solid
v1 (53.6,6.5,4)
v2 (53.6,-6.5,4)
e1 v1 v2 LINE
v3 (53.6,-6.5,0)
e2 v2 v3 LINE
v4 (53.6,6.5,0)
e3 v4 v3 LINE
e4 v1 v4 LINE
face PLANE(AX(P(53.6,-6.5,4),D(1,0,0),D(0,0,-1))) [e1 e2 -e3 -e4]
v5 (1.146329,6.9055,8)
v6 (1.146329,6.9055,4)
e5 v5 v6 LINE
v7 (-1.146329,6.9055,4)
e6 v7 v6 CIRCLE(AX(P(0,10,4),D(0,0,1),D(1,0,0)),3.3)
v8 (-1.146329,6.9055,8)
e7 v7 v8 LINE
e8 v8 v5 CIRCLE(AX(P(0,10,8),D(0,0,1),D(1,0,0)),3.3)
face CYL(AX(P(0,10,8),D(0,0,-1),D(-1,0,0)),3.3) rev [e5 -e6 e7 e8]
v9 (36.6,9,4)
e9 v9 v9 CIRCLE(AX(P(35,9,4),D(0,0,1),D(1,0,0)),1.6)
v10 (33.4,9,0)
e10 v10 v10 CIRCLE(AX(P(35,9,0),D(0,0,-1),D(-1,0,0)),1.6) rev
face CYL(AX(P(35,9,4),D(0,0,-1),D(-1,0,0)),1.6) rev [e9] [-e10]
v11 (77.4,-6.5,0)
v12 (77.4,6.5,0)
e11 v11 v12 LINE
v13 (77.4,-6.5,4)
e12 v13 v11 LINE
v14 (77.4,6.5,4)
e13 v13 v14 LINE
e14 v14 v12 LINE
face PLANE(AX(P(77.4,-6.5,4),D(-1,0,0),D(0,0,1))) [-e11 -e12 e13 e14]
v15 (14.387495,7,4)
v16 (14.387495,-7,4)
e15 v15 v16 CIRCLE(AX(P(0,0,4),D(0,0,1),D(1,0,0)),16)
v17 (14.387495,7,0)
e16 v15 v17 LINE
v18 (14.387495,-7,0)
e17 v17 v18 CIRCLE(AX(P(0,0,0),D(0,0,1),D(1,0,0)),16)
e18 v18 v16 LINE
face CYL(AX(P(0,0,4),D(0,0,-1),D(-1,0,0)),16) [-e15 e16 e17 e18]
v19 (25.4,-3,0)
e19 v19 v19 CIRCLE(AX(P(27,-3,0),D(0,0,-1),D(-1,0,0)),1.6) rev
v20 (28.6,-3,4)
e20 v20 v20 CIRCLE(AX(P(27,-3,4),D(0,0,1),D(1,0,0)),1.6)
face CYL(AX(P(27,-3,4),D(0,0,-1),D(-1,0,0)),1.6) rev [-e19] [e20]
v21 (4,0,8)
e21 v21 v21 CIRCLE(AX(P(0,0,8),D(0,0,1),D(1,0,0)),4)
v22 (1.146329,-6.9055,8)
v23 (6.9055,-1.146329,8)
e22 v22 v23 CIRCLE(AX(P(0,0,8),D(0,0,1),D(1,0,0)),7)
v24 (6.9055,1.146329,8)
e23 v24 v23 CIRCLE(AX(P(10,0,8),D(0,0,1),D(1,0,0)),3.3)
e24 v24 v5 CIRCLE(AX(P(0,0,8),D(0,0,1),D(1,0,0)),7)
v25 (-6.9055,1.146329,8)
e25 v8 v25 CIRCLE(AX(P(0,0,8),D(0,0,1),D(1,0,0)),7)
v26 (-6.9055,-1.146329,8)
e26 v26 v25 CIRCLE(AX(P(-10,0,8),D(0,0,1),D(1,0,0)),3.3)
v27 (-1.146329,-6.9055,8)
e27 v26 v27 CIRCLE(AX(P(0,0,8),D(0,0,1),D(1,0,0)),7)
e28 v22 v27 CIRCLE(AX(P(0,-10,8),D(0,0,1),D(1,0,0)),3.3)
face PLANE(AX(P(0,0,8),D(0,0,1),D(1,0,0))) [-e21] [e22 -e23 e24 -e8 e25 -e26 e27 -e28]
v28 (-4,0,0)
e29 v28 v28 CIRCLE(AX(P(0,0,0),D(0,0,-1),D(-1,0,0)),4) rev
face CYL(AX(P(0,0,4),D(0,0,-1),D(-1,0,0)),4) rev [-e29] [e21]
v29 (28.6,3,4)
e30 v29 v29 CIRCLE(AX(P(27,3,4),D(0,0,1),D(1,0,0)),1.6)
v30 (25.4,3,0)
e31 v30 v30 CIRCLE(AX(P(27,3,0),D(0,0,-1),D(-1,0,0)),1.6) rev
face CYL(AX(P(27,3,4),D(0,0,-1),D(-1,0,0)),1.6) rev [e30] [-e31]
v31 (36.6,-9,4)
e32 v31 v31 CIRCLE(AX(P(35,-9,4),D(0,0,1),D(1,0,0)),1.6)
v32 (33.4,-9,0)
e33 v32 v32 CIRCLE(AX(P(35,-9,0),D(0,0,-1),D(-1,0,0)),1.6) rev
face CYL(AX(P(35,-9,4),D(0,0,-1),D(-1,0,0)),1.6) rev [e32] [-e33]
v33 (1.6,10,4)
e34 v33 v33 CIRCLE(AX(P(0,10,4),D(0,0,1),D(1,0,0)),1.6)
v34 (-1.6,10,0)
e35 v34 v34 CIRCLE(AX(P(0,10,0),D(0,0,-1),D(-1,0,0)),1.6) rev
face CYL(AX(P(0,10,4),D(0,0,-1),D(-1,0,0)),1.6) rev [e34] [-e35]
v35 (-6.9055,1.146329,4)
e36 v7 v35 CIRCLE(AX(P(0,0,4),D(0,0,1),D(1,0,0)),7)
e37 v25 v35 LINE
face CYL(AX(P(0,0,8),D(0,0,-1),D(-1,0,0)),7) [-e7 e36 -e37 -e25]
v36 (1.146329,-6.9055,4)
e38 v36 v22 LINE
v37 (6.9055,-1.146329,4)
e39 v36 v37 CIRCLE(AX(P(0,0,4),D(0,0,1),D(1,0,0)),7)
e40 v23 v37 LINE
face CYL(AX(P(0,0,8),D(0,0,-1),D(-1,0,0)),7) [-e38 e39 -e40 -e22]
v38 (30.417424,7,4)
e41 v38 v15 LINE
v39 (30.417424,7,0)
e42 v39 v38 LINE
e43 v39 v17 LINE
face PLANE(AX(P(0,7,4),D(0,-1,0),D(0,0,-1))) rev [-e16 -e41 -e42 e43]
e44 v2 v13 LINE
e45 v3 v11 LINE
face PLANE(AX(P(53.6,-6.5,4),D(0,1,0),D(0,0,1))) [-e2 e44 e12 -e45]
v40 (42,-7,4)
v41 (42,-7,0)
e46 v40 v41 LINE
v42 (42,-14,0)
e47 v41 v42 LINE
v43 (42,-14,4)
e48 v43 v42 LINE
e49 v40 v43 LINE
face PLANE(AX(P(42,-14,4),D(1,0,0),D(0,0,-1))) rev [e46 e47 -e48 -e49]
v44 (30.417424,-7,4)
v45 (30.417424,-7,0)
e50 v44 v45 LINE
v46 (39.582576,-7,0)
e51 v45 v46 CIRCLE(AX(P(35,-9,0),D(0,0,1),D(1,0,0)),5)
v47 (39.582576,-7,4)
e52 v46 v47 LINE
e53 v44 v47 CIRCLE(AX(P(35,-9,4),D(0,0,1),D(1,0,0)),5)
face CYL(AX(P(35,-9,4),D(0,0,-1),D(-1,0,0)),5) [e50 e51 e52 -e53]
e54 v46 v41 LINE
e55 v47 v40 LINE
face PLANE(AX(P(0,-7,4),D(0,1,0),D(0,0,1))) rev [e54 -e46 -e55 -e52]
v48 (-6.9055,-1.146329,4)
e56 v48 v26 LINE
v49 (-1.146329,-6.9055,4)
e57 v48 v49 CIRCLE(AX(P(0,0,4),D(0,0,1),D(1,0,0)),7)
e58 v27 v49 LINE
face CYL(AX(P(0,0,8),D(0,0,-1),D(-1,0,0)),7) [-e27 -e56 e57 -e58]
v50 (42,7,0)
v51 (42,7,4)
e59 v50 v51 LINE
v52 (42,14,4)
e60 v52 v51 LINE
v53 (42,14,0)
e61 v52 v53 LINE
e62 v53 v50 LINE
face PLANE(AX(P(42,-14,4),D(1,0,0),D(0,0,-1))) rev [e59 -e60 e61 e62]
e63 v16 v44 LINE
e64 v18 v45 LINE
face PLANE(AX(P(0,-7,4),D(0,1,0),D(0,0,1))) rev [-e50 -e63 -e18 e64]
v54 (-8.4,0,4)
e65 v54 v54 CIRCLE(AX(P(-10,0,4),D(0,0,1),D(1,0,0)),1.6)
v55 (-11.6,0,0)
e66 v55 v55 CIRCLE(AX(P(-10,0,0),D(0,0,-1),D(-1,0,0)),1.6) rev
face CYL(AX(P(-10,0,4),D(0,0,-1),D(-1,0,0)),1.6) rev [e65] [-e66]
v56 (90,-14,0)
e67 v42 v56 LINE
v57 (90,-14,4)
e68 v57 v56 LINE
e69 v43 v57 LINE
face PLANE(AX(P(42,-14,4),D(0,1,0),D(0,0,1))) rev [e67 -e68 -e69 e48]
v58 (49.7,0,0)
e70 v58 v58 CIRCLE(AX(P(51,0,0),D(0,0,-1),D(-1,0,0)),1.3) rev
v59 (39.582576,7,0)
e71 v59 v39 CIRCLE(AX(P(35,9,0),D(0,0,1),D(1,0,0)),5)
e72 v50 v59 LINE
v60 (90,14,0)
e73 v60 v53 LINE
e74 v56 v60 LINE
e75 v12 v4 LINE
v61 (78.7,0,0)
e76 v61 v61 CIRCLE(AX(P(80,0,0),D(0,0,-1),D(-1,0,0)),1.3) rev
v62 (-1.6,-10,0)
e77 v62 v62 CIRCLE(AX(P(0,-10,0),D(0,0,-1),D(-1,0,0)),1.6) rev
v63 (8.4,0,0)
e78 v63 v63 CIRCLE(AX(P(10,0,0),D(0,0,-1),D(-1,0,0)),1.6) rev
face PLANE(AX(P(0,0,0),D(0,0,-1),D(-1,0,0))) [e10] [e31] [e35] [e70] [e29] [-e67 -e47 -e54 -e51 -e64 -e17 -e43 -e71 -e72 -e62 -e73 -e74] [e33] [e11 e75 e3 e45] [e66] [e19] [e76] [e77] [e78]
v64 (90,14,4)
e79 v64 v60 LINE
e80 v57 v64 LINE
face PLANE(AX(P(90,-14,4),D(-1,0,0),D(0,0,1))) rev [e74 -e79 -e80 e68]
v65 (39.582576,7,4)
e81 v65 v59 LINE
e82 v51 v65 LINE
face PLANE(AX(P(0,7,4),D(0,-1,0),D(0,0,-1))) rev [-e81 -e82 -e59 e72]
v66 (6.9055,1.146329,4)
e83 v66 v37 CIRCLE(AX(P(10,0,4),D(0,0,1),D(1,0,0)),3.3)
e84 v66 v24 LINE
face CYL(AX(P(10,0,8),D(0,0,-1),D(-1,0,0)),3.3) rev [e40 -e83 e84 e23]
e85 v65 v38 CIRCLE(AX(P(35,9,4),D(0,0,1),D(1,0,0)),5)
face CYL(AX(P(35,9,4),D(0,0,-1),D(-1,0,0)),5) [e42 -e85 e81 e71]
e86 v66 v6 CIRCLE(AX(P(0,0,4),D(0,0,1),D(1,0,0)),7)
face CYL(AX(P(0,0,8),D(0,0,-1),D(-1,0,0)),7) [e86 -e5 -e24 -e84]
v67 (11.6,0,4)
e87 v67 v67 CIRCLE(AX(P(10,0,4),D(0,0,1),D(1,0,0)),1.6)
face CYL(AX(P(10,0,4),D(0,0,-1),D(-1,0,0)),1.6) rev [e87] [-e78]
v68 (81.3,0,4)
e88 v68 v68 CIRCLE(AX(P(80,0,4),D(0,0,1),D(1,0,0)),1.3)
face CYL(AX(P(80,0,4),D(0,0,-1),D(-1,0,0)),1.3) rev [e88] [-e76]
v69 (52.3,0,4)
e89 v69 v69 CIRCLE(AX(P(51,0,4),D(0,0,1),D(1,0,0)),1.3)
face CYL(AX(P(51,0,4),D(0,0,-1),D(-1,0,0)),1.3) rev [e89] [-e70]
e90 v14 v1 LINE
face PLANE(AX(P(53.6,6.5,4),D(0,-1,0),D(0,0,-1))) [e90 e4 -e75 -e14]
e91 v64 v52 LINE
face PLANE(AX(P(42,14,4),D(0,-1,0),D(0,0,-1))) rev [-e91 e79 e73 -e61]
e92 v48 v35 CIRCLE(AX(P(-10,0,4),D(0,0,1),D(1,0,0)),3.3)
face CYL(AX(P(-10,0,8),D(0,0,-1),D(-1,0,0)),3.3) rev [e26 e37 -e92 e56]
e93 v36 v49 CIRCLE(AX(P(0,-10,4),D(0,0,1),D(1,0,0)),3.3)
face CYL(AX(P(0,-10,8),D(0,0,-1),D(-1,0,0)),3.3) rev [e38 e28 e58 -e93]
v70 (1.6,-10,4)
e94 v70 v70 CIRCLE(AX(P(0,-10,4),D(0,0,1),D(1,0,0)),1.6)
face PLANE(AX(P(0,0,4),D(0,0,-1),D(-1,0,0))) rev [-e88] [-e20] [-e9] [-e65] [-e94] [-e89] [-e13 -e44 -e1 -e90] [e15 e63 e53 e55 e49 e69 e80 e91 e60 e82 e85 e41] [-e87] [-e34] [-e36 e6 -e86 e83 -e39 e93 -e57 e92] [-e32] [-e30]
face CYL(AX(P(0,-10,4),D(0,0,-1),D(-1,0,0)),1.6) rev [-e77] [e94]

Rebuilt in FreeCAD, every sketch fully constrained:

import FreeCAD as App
import Part
import Sketcher


def add_polygon(sketch, points):
    """Adds a closed chain of lines whose ends are joined by coincident constraints."""
    first, n = sketch.GeometryCount, len(points)
    for a, b in zip(points, points[1:] + points[:1]):
        sketch.addGeometry(Part.LineSegment(App.Vector(*a, 0), App.Vector(*b, 0)), False)
    for i in range(n):
        sketch.addConstraint(Sketcher.Constraint("Coincident", first + i, 2, first + (i + 1) % n, 1))

doc = App.newDocument("Part")
body = doc.addObject("PartDesign::Body", "Body")

# Sketch on XY plane
sketch1 = body.newObject("Sketcher::SketchObject", "Sketch")
sketch1.AttachmentSupport = (doc.getObject("XY_Plane"), [""])
sketch1.MapMode = "FlatFace"
add_polygon(sketch1, [(0, 7), (0, -7), (60, -7), (60, 7)])  # lines 0-3
sketch1.addConstraint([
    Sketcher.Constraint("Vertical", 0),
    Sketcher.Constraint("Horizontal", 1),
    Sketcher.Constraint("Vertical", 2),
    Sketcher.Constraint("Horizontal", 3),
    Sketcher.Constraint("Symmetric", 0, 2, 3, 2, -1, 1),
    Sketcher.Constraint("DistanceX", 1, 1, 1, 2, 60.0),
    Sketcher.Constraint("DistanceY", 0, 2, 0, 1, 14.0),
])
pad1 = body.newObject("PartDesign::Pad", "Pad")
pad1.Profile = sketch1
pad1.Length = 4

# Sketch on XY plane
sketch2 = body.newObject("Sketcher::SketchObject", "Sketch001")
sketch2.AttachmentSupport = (doc.getObject("XY_Plane"), [""])
sketch2.MapMode = "FlatFace"
sketch2.addGeometry(Part.Circle(App.Vector(0, 0, 0), App.Vector(0, 0, 1), 16), False)
sketch2.addConstraint([
    Sketcher.Constraint("Coincident", 0, 3, -1, 1),
    Sketcher.Constraint("Diameter", 0, 32.0),
])
pad2 = body.newObject("PartDesign::Pad", "Pad001")
pad2.Profile = sketch2
pad2.Length = 4

# Sketch on XY plane
sketch3 = body.newObject("Sketcher::SketchObject", "Sketch002")
sketch3.AttachmentSupport = (doc.getObject("XY_Plane"), [""])
sketch3.MapMode = "FlatFace"
add_polygon(sketch3, [(42, 14), (42, -14), (90, -14), (90, 14)])  # lines 0-3
sketch3.addConstraint([
    Sketcher.Constraint("Vertical", 0),
    Sketcher.Constraint("Horizontal", 1),
    Sketcher.Constraint("Vertical", 2),
    Sketcher.Constraint("Horizontal", 3),
    Sketcher.Constraint("DistanceX", 1, 1, 1, 2, 48.0),
    Sketcher.Constraint("DistanceY", 0, 2, 0, 1, 28.0),
    Sketcher.Constraint("DistanceX", -1, 1, 0, 2, 42.0),
    Sketcher.Constraint("DistanceY", 0, 2, -1, 1, 14.0),
])
pad3 = body.newObject("PartDesign::Pad", "Pad002")
pad3.Profile = sketch3
pad3.Length = 4

# Sketch on XY plane
sketch4 = body.newObject("Sketcher::SketchObject", "Sketch003")
sketch4.AttachmentSupport = (doc.getObject("XY_Plane"), [""])
sketch4.MapMode = "FlatFace"
sketch4.AttachmentOffset = App.Placement(App.Vector(0, 0, -5), App.Rotation())
add_polygon(sketch4, [(54, 6), (54, -6), (77, -6), (77, 6)])  # lines 0-3
sketch4.addConstraint([
    Sketcher.Constraint("Vertical", 0),
    Sketcher.Constraint("Horizontal", 1),
    Sketcher.Constraint("Vertical", 2),
    Sketcher.Constraint("Horizontal", 3),
    Sketcher.Constraint("DistanceY", 0, 2, 0, 1, 13.0),
    Sketcher.Constraint("DistanceX", 1, 1, 1, 2, 23.8),
    Sketcher.Constraint("DistanceX", -1, 1, 0, 2, 53.6),
    Sketcher.Constraint("DistanceY", 0, 2, -1, 1, 6.5),
])
pocket1 = body.newObject("PartDesign::Pocket", "Pocket")
pocket1.Profile = sketch4
pocket1.Type = "ThroughAll"
pocket1.Reversed = True

# Sketch on XY plane
sketch5 = body.newObject("Sketcher::SketchObject", "Sketch004")
sketch5.AttachmentSupport = (doc.getObject("XY_Plane"), [""])
sketch5.MapMode = "FlatFace"
sketch5.AttachmentOffset = App.Placement(App.Vector(0, 0, -50), App.Rotation())
sketch5.addGeometry([
    Part.Circle(App.Vector(51, 0, 0), App.Vector(0, 0, 1), 1.3),
    Part.Circle(App.Vector(80, 0, 0), App.Vector(0, 0, 1), 1.3),
], False)
sketch5.addConstraint([
    Sketcher.Constraint("Equal", 0, 1),
    Sketcher.Constraint("PointOnObject", 0, 3, -1),
    Sketcher.Constraint("PointOnObject", 1, 3, -1),
    Sketcher.Constraint("Diameter", 0, 2.6),
    Sketcher.Constraint("DistanceX", -1, 1, 0, 3, 51.0),
    Sketcher.Constraint("DistanceX", -1, 1, 1, 3, 80.0),
])
pocket2 = body.newObject("PartDesign::Pocket", "Pocket001")
pocket2.Profile = sketch5
pocket2.Type = "ThroughAll"
pocket2.Reversed = True

# Sketch on XY plane
sketch6 = body.newObject("Sketcher::SketchObject", "Sketch005")
sketch6.AttachmentSupport = (doc.getObject("XY_Plane"), [""])
sketch6.MapMode = "FlatFace"
sketch6.AttachmentOffset = App.Placement(App.Vector(0, 0, -50), App.Rotation())
sketch6.addGeometry(Part.Circle(App.Vector(0, 0, 0), App.Vector(0, 0, 1), 4), False)
sketch6.addConstraint([
    Sketcher.Constraint("Coincident", 0, 3, -1, 1),
    Sketcher.Constraint("Diameter", 0, 8.0),
])
pocket3 = body.newObject("PartDesign::Pocket", "Pocket002")
pocket3.Profile = sketch6
pocket3.Type = "ThroughAll"
pocket3.Reversed = True

# Sketch on XY plane
sketch7 = body.newObject("Sketcher::SketchObject", "Sketch006")
sketch7.AttachmentSupport = (doc.getObject("XY_Plane"), [""])
sketch7.MapMode = "FlatFace"
sketch7.AttachmentOffset = App.Placement(App.Vector(0, 0, -50), App.Rotation())
sketch7.addGeometry([
    Part.Circle(App.Vector(0, 10, 0), App.Vector(0, 0, 1), 1.6),
    Part.Circle(App.Vector(0, -10, 0), App.Vector(0, 0, 1), 1.6),
    Part.Circle(App.Vector(10, 0, 0), App.Vector(0, 0, 1), 1.6),
    Part.Circle(App.Vector(-10, 0, 0), App.Vector(0, 0, 1), 1.6),
], False)
sketch7.addConstraint([
    Sketcher.Constraint("Equal", 0, 1),
    Sketcher.Constraint("Equal", 1, 2),
    Sketcher.Constraint("Equal", 2, 3),
    Sketcher.Constraint("Symmetric", 0, 3, 1, 3, -1, 1),
    Sketcher.Constraint("Symmetric", 2, 3, 3, 3, -1, 1),
    Sketcher.Constraint("PointOnObject", 0, 3, -2),
    Sketcher.Constraint("PointOnObject", 2, 3, -1),
    Sketcher.Constraint("Diameter", 0, 3.2),
    Sketcher.Constraint("DistanceY", -1, 1, 0, 3, 10.0),
    Sketcher.Constraint("DistanceX", -1, 1, 2, 3, 10.0),
])
pocket4 = body.newObject("PartDesign::Pocket", "Pocket003")
pocket4.Profile = sketch7
pocket4.Type = "ThroughAll"
pocket4.Reversed = True

# Sketch on XY plane
sketch8 = body.newObject("Sketcher::SketchObject", "Sketch007")
sketch8.AttachmentSupport = (doc.getObject("XY_Plane"), [""])
sketch8.MapMode = "FlatFace"
sketch8.AttachmentOffset = App.Placement(App.Vector(0, 0, -50), App.Rotation())
sketch8.addGeometry([
    Part.Circle(App.Vector(27, -3, 0), App.Vector(0, 0, 1), 1.6),
    Part.Circle(App.Vector(27, 3, 0), App.Vector(0, 0, 1), 1.6),
], False)
sketch8.addConstraint([
    Sketcher.Constraint("Equal", 0, 1),
    Sketcher.Constraint("Symmetric", 0, 3, 1, 3, -1),
    Sketcher.Constraint("Diameter", 0, 3.2),
    Sketcher.Constraint("DistanceX", -1, 1, 0, 3, 27.0),
    Sketcher.Constraint("DistanceY", 0, 3, -1, 1, 3.0),
])
pocket5 = body.newObject("PartDesign::Pocket", "Pocket004")
pocket5.Profile = sketch8
pocket5.Type = "ThroughAll"
pocket5.Reversed = True

# Sketch on XY plane
sketch9 = body.newObject("Sketcher::SketchObject", "Sketch008")
sketch9.AttachmentSupport = (doc.getObject("XY_Plane"), [""])
sketch9.MapMode = "FlatFace"
sketch9.addGeometry(Part.Circle(App.Vector(35, -9, 0), App.Vector(0, 0, 1), 5), False)
sketch9.addConstraint([
    Sketcher.Constraint("Diameter", 0, 10.0),
    Sketcher.Constraint("DistanceX", -1, 1, 0, 3, 35.0),
    Sketcher.Constraint("DistanceY", 0, 3, -1, 1, 9.0),
])
pad4 = body.newObject("PartDesign::Pad", "Pad003")
pad4.Profile = sketch9
pad4.Length = 4

# Sketch on XY plane
sketch10 = body.newObject("Sketcher::SketchObject", "Sketch009")
sketch10.AttachmentSupport = (doc.getObject("XY_Plane"), [""])
sketch10.MapMode = "FlatFace"
sketch10.addGeometry(Part.Circle(App.Vector(35, 9, 0), App.Vector(0, 0, 1), 5), False)
sketch10.addConstraint([
    Sketcher.Constraint("Diameter", 0, 10.0),
    Sketcher.Constraint("DistanceX", -1, 1, 0, 3, 35.0),
    Sketcher.Constraint("DistanceY", -1, 1, 0, 3, 9.0),
])
pad5 = body.newObject("PartDesign::Pad", "Pad004")
pad5.Profile = sketch10
pad5.Length = 4

# Sketch on XY plane
sketch11 = body.newObject("Sketcher::SketchObject", "Sketch010")
sketch11.AttachmentSupport = (doc.getObject("XY_Plane"), [""])
sketch11.MapMode = "FlatFace"
sketch11.AttachmentOffset = App.Placement(App.Vector(0, 0, -50), App.Rotation())
sketch11.addGeometry([
    Part.Circle(App.Vector(35, -9, 0), App.Vector(0, 0, 1), 1.6),
    Part.Circle(App.Vector(35, 9, 0), App.Vector(0, 0, 1), 1.6),
], False)
sketch11.addConstraint([
    Sketcher.Constraint("Equal", 0, 1),
    Sketcher.Constraint("Symmetric", 0, 3, 1, 3, -1),
    Sketcher.Constraint("Diameter", 0, 3.2),
    Sketcher.Constraint("DistanceX", -1, 1, 0, 3, 35.0),
    Sketcher.Constraint("DistanceY", 0, 3, -1, 1, 9.0),
])
pocket6 = body.newObject("PartDesign::Pocket", "Pocket005")
pocket6.Profile = sketch11
pocket6.Type = "ThroughAll"
pocket6.Reversed = True

# Sketch on XY plane
sketch12 = body.newObject("Sketcher::SketchObject", "Sketch011")
sketch12.AttachmentSupport = (doc.getObject("XY_Plane"), [""])
sketch12.MapMode = "FlatFace"
sketch12.AttachmentOffset = App.Placement(App.Vector(0, 0, 4), App.Rotation())
sketch12.addGeometry([
    Part.Circle(App.Vector(0, 0, 0), App.Vector(0, 0, 1), 7),
    Part.Circle(App.Vector(0, 0, 0), App.Vector(0, 0, 1), 4),
], False)
sketch12.addConstraint([
    Sketcher.Constraint("Coincident", 0, 3, -1, 1),
    Sketcher.Constraint("Coincident", 1, 3, -1, 1),
    Sketcher.Constraint("Diameter", 0, 14.0),
    Sketcher.Constraint("Diameter", 1, 8.0),
])
pad6 = body.newObject("PartDesign::Pad", "Pad005")
pad6.Profile = sketch12
pad6.Length = 4

# Sketch on XY plane
sketch13 = body.newObject("Sketcher::SketchObject", "Sketch012")
sketch13.AttachmentSupport = (doc.getObject("XY_Plane"), [""])
sketch13.MapMode = "FlatFace"
sketch13.AttachmentOffset = App.Placement(App.Vector(0, 0, 4), App.Rotation())
sketch13.addGeometry([
    Part.Circle(App.Vector(10, 0, 0), App.Vector(0, 0, 1), 3.3),
    Part.Circle(App.Vector(-10, 0, 0), App.Vector(0, 0, 1), 3.3),
    Part.Circle(App.Vector(0, 10, 0), App.Vector(0, 0, 1), 3.3),
    Part.Circle(App.Vector(0, -10, 0), App.Vector(0, 0, 1), 3.3),
], False)
sketch13.addConstraint([
    Sketcher.Constraint("Equal", 0, 1),
    Sketcher.Constraint("Equal", 1, 2),
    Sketcher.Constraint("Equal", 2, 3),
    Sketcher.Constraint("Symmetric", 0, 3, 1, 3, -1, 1),
    Sketcher.Constraint("Symmetric", 2, 3, 3, 3, -1, 1),
    Sketcher.Constraint("PointOnObject", 0, 3, -1),
    Sketcher.Constraint("PointOnObject", 2, 3, -2),
    Sketcher.Constraint("Diameter", 0, 6.6),
    Sketcher.Constraint("DistanceX", -1, 1, 0, 3, 10.0),
    Sketcher.Constraint("DistanceY", -1, 1, 2, 3, 10.0),
])
pocket7 = body.newObject("PartDesign::Pocket", "Pocket006")
pocket7.Profile = sketch13
pocket7.Length = 4
pocket7.Reversed = True

doc.recompute()
